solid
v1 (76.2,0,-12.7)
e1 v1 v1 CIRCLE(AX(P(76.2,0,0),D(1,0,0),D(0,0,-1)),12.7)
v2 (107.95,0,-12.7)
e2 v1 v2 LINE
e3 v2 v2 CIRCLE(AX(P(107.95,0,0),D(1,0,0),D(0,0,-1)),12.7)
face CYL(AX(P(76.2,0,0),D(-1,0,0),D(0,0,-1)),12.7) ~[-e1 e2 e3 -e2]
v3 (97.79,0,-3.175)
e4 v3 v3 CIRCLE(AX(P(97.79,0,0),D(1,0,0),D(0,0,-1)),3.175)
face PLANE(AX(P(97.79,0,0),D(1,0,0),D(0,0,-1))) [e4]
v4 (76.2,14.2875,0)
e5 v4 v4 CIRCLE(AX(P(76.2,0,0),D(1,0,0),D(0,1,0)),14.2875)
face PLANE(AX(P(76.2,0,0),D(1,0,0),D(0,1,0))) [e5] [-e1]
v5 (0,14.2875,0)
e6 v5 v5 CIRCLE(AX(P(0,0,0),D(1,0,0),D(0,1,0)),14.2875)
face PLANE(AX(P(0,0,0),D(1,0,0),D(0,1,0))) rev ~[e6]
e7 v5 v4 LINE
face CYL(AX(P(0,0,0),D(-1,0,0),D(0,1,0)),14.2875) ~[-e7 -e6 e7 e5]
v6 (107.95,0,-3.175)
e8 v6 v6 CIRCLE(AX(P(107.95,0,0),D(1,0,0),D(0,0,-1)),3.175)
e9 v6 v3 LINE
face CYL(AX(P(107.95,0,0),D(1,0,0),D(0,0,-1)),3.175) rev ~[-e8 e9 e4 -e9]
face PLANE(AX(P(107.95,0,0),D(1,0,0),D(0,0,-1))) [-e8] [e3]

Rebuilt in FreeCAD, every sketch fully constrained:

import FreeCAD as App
import Part
import Sketcher
Q = App.Units.Quantity

doc = App.newDocument("Part")
params = doc.addObject("Spreadsheet::Sheet", "Params")
for row, (alias, value) in enumerate([
    ("sketch1_diameter", "1.125 in"),
    ("pad1_length", "3 in"),
    ("sketch2_diameter", "1 in"),
    ("pad2_length", "1.25 in"),
    ("sketch3_diameter", "0.25 in"),
    ("pocket1_length", "0.4 in"),
], start=1):
    params.set(f"A{row}", alias)
    params.set(f"B{row}", "=" + value)
    params.setAlias(f"B{row}", alias)

body = doc.addObject("PartDesign::Body", "Body")

sketch1 = doc.addObject("Sketcher::SketchObject", "Sketch")
body.addObject(sketch1)
sketch1.AttachmentSupport = (doc.YZ_Plane, [""])
sketch1.MapMode = "FlatFace"
sketch1.addGeometry(Part.Circle(App.Vector(0, 0, 0), App.Vector(0, 0, 1), 14.2875), False)
sketch1.addConstraint([
    Sketcher.Constraint("Coincident", 0, 3, -1, 1),
    Sketcher.Constraint("Diameter", 0, Q("1.125 in")),
])
sketch1.setExpression("Constraints[1]", "Params.sketch1_diameter")
pad1 = doc.addObject("PartDesign::Pad", "Pad")
body.addObject(pad1)
pad1.Profile = sketch1
pad1.setExpression("Length", "Params.pad1_length")

sketch2 = doc.addObject("Sketcher::SketchObject", "Sketch001")
body.addObject(sketch2)
sketch2.AttachmentSupport = (doc.YZ_Plane, [""])
sketch2.MapMode = "FlatFace"
sketch2.AttachmentOffset = App.Placement(App.Vector(0, 0, 3 * 25.4), App.Rotation())
sketch2.addGeometry(Part.Circle(App.Vector(0, 0, 0), App.Vector(0, 0, 1), 12.7), False)
sketch2.addConstraint([
    Sketcher.Constraint("Coincident", 0, 3, -1, 1),
    Sketcher.Constraint("Diameter", 0, Q("1 in")),
])
sketch2.setExpression("Constraints[1]", "Params.sketch2_diameter")
pad2 = doc.addObject("PartDesign::Pad", "Pad001")
body.addObject(pad2)
pad2.Profile = sketch2
pad2.setExpression("Length", "Params.pad2_length")

sketch3 = doc.addObject("Sketcher::SketchObject", "Sketch002")
body.addObject(sketch3)
sketch3.AttachmentSupport = (doc.YZ_Plane, [""])
sketch3.MapMode = "FlatFace"
sketch3.AttachmentOffset = App.Placement(App.Vector(0, 0, 4.25 * 25.4), App.Rotation())
sketch3.addGeometry(Part.Circle(App.Vector(0, 0, 0), App.Vector(0, 0, 1), 3.175), False)
sketch3.addConstraint([
    Sketcher.Constraint("Coincident", 0, 3, -1, 1),
    Sketcher.Constraint("Diameter", 0, Q("0.25 in")),
])
sketch3.setExpression("Constraints[1]", "Params.sketch3_diameter")
pocket1 = doc.addObject("PartDesign::Pocket", "Pocket")
body.addObject(pocket1)
pocket1.Profile = sketch3
pocket1.setExpression("Length", "Params.pocket1_length")

doc.recompute()
